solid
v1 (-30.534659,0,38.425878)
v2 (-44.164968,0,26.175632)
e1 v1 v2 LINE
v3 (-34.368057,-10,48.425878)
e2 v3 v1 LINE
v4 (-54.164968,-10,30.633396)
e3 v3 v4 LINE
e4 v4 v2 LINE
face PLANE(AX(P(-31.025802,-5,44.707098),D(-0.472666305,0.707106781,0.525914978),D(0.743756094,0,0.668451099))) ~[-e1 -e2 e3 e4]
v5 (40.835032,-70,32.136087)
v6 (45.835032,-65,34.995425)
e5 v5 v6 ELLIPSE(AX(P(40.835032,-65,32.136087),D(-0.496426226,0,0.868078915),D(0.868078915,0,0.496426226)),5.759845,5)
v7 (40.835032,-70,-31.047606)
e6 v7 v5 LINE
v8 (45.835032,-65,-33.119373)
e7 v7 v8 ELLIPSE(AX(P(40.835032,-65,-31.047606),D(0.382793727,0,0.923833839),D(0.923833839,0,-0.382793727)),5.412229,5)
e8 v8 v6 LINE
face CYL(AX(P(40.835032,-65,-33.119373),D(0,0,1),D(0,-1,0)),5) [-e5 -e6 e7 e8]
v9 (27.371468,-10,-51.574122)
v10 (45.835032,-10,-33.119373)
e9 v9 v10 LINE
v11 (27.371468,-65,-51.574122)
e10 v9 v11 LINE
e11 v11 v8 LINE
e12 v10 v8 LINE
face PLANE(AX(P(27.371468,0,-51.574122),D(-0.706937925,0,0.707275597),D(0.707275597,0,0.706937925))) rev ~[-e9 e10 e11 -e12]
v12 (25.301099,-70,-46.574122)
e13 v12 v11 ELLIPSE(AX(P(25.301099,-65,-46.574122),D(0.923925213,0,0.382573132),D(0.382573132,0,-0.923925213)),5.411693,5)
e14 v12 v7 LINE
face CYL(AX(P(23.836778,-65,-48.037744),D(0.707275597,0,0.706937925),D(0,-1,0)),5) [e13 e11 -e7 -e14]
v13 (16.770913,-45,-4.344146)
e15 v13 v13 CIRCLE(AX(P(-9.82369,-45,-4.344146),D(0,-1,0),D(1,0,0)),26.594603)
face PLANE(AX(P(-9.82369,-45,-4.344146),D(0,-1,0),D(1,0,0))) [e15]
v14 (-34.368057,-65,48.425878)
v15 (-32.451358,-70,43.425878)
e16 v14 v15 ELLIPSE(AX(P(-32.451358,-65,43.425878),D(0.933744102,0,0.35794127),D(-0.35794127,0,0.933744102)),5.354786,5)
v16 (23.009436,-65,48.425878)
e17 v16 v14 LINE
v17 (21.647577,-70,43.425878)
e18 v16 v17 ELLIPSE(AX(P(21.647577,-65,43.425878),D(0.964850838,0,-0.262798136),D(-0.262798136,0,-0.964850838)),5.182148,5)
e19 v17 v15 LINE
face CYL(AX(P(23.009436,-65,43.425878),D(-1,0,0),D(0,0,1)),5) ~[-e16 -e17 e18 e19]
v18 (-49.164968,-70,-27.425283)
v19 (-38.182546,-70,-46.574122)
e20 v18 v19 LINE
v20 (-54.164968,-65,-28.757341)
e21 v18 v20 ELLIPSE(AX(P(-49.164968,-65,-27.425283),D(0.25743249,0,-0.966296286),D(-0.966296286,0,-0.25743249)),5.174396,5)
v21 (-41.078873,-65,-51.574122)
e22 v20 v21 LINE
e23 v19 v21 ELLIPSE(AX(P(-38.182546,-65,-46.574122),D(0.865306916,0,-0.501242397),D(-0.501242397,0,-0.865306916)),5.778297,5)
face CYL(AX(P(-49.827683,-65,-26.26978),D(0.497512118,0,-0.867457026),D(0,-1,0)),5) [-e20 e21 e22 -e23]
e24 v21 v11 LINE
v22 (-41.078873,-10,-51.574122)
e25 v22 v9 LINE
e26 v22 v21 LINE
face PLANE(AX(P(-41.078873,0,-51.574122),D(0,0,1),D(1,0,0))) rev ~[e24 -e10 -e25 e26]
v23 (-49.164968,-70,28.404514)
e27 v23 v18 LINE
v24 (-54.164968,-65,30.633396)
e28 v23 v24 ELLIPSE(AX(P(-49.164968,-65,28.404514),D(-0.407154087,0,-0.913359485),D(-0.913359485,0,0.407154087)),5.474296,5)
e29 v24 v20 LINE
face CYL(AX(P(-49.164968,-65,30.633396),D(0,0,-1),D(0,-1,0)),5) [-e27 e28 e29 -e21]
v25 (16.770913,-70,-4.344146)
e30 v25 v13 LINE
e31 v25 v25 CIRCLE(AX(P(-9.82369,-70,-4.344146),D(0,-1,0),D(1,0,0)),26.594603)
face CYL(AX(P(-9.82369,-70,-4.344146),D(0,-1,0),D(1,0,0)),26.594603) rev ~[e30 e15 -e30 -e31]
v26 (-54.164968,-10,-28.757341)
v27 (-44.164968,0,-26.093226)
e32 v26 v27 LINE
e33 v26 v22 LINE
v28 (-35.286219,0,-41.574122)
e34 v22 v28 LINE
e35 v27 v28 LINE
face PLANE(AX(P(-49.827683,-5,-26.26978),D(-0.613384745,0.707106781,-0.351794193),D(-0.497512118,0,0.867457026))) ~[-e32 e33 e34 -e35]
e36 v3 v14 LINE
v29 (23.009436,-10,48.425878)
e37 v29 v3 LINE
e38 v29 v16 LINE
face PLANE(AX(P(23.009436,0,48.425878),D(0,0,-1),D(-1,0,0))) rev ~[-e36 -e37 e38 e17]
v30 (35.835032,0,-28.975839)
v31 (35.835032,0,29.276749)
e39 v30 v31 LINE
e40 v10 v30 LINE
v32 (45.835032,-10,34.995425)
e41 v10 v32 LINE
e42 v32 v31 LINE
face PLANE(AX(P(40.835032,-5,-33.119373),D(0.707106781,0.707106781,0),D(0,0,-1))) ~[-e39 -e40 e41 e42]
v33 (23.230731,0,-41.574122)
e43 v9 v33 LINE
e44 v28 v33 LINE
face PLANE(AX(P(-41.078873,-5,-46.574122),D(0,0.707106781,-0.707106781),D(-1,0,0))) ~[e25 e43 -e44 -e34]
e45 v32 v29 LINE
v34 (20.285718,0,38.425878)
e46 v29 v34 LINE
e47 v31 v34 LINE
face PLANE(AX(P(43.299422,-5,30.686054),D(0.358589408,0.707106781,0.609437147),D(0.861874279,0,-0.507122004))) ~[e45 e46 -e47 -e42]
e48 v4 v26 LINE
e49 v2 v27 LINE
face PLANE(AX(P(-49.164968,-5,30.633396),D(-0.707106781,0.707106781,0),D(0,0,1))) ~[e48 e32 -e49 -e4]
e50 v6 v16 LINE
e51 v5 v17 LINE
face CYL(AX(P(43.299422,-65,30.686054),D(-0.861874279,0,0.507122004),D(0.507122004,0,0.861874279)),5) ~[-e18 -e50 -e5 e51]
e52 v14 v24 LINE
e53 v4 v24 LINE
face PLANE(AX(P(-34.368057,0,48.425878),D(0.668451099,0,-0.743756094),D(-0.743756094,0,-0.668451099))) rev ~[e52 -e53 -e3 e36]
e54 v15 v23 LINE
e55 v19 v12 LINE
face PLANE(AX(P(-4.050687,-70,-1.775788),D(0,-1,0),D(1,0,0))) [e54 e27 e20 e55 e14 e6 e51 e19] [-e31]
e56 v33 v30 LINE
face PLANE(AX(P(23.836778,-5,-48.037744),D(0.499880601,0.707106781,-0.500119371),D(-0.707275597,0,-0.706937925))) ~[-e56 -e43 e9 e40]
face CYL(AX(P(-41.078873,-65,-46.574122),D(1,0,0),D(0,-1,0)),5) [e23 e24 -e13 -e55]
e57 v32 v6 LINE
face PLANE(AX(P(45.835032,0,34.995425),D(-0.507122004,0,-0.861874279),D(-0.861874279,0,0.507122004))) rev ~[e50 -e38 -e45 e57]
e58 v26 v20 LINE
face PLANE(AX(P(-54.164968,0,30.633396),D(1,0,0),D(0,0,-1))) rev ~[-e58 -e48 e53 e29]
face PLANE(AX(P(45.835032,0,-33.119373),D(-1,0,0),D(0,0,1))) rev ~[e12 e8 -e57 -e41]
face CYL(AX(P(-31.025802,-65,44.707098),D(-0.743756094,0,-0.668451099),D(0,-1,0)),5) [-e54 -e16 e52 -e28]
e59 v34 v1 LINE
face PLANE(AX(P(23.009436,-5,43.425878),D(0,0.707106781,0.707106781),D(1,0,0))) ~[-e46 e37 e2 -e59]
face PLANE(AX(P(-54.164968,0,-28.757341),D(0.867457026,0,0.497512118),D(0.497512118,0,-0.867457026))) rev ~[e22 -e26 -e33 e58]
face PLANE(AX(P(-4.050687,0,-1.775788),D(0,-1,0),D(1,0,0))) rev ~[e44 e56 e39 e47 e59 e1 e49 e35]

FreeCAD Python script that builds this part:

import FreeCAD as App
import Part
import Sketcher


def edges_at(feature, points):
    """Names of the edges that pass closest to the given points."""
    edges = feature.Shape.Edges
    near = lambda p: min(range(len(edges)), key=lambda i: edges[i].distToShape(Part.Vertex(*p))[0])
    return sorted({f"Edge{near(p) + 1}" for p in points})

doc = App.newDocument("Part")
body = doc.addObject("PartDesign::Body", "Body")

# Sketch on XZ plane
sketch1 = doc.addObject("Sketcher::SketchObject", "Sketch")
body.addObject(sketch1)
sketch1.AttachmentSupport = (doc.XZ_Plane, [""])
sketch1.MapMode = "FlatFace"
sketch1.addGeometry([
    Part.LineSegment(App.Vector(23, 48, 0), App.Vector(-34, 48, 0)),  # 0
    Part.LineSegment(App.Vector(-34, 48, 0), App.Vector(-54, 31, 0)),  # 1
    Part.LineSegment(App.Vector(-54, 31, 0), App.Vector(-54, -29, 0)),  # 2
    Part.LineSegment(App.Vector(-54, -29, 0), App.Vector(-41, -52, 0)),  # 3
    Part.LineSegment(App.Vector(-41, -52, 0), App.Vector(27, -52, 0)),  # 4
    Part.LineSegment(App.Vector(27, -52, 0), App.Vector(46, -33, 0)),  # 5
    Part.LineSegment(App.Vector(46, -33, 0), App.Vector(46, 35, 0)),  # 6
    Part.LineSegment(App.Vector(46, 35, 0), App.Vector(23, 48, 0)),  # 7
], False)
sketch1.addConstraint([
    Sketcher.Constraint("Coincident", 0, 2, 1, 1),
    Sketcher.Constraint("Coincident", 1, 2, 2, 1),
    Sketcher.Constraint("Coincident", 2, 2, 3, 1),
    Sketcher.Constraint("Coincident", 3, 2, 4, 1),
    Sketcher.Constraint("Coincident", 4, 2, 5, 1),
    Sketcher.Constraint("Coincident", 5, 2, 6, 1),
    Sketcher.Constraint("Coincident", 6, 2, 7, 1),
    Sketcher.Constraint("Coincident", 7, 2, 0, 1),
    Sketcher.Constraint("Horizontal", 0),
    Sketcher.Constraint("Vertical", 2),
    Sketcher.Constraint("Horizontal", 4),
    Sketcher.Constraint("Vertical", 6),
    Sketcher.Constraint("DistanceY", 3, 2, 0, 2, 100.0),
    Sketcher.Constraint("DistanceX", 2, 2, 5, 2, 100.0),
    Sketcher.Constraint("DistanceY", 6, 1, 6, 2, 68.114798),
    Sketcher.Constraint("DistanceX", 4, 1, 4, 2, 68.450341),
    Sketcher.Constraint("Distance", 5, 26.10519),
    Sketcher.Constraint("DistanceX", 0, 2, 0, 1, 57.377493),
    Sketcher.Constraint("DistanceY", 2, 2, 2, 1, 59.390737),
    Sketcher.Constraint("DistanceX", 1, 2, -1, 1, 54.164968),
    Sketcher.Constraint("DistanceY", 2, 2, -1, 1, 28.757341),
    Sketcher.Constraint("DistanceX", -1, 1, 4, 2, 27.371468),
    Sketcher.Constraint("DistanceX", 1, 2, 0, 2, 19.796911),
    Sketcher.Constraint("DistanceY", 1, 2, 0, 2, 17.792482),
])
pad1 = doc.addObject("PartDesign::Pad", "Pad")
body.addObject(pad1)
pad1.Profile = sketch1
pad1.Length = 70
doc.recompute()

chamfer = doc.addObject("PartDesign::Chamfer", "Chamfer")
body.addObject(chamfer)
chamfer.Base = (pad1, edges_at(pad1, [
    (-5.679, 0, 48.426),
    (-44.267, 0, 39.53),
    (-54.165, 0, 0.938),
    (-47.622, 0, -40.166),
    (-6.854, 0, -51.574),
    (36.603, 0, -42.347),
    (45.835, 0, 0.938),
    (34.422, 0, 41.711),
]))
chamfer.Size = 10
doc.recompute()

fillet = doc.addObject("PartDesign::Fillet", "Fillet")
body.addObject(fillet)
fillet.Base = (chamfer, edges_at(chamfer, [
    (-5.679, -70, 48.426),
    (-44.267, -70, 39.53),
    (-54.165, -70, 0.938),
    (-47.622, -70, -40.166),
    (-6.854, -70, -51.574),
    (36.603, -70, -42.347),
    (45.835, -70, 0.938),
    (34.422, -70, 41.711),
]))
fillet.Radius = 5

# Sketch on XZ plane
sketch2 = doc.addObject("Sketcher::SketchObject", "Sketch001")
body.addObject(sketch2)
sketch2.AttachmentSupport = (doc.XZ_Plane, [""])
sketch2.MapMode = "FlatFace"
sketch2.addGeometry(Part.Circle(App.Vector(0, 0, 0), App.Vector(0, 0, 1), 21), False)
sketch2.addConstraint([
    Sketcher.Constraint("Coincident", 0, 3, -1, 1),
    Sketcher.Constraint("Diameter", 0, 42.983934),
])
pad2 = doc.addObject("PartDesign::Pad", "Pad001")
body.addObject(pad2)
pad2.Profile = sketch2
pad2.Length = 39.1

# Sketch on XZ plane
sketch3 = doc.addObject("Sketcher::SketchObject", "Sketch002")
body.addObject(sketch3)
sketch3.AttachmentSupport = (doc.XZ_Plane, [""])
sketch3.MapMode = "FlatFace"
sketch3.AttachmentOffset = App.Placement(App.Vector(0, 0, 70), App.Rotation())
sketch3.addGeometry(Part.Circle(App.Vector(-10, -4, 0), App.Vector(0, 0, 1), 27), False)
sketch3.addConstraint([
    Sketcher.Constraint("Diameter", 0, 53.189206),
    Sketcher.Constraint("DistanceX", 0, 3, -1, 1, 9.82369),
    Sketcher.Constraint("DistanceY", 0, 3, -1, 1, 4.344146),
])
pocket1 = doc.addObject("PartDesign::Pocket", "Pocket")
body.addObject(pocket1)
pocket1.Profile = sketch3
pocket1.Length = 25

doc.recompute()
